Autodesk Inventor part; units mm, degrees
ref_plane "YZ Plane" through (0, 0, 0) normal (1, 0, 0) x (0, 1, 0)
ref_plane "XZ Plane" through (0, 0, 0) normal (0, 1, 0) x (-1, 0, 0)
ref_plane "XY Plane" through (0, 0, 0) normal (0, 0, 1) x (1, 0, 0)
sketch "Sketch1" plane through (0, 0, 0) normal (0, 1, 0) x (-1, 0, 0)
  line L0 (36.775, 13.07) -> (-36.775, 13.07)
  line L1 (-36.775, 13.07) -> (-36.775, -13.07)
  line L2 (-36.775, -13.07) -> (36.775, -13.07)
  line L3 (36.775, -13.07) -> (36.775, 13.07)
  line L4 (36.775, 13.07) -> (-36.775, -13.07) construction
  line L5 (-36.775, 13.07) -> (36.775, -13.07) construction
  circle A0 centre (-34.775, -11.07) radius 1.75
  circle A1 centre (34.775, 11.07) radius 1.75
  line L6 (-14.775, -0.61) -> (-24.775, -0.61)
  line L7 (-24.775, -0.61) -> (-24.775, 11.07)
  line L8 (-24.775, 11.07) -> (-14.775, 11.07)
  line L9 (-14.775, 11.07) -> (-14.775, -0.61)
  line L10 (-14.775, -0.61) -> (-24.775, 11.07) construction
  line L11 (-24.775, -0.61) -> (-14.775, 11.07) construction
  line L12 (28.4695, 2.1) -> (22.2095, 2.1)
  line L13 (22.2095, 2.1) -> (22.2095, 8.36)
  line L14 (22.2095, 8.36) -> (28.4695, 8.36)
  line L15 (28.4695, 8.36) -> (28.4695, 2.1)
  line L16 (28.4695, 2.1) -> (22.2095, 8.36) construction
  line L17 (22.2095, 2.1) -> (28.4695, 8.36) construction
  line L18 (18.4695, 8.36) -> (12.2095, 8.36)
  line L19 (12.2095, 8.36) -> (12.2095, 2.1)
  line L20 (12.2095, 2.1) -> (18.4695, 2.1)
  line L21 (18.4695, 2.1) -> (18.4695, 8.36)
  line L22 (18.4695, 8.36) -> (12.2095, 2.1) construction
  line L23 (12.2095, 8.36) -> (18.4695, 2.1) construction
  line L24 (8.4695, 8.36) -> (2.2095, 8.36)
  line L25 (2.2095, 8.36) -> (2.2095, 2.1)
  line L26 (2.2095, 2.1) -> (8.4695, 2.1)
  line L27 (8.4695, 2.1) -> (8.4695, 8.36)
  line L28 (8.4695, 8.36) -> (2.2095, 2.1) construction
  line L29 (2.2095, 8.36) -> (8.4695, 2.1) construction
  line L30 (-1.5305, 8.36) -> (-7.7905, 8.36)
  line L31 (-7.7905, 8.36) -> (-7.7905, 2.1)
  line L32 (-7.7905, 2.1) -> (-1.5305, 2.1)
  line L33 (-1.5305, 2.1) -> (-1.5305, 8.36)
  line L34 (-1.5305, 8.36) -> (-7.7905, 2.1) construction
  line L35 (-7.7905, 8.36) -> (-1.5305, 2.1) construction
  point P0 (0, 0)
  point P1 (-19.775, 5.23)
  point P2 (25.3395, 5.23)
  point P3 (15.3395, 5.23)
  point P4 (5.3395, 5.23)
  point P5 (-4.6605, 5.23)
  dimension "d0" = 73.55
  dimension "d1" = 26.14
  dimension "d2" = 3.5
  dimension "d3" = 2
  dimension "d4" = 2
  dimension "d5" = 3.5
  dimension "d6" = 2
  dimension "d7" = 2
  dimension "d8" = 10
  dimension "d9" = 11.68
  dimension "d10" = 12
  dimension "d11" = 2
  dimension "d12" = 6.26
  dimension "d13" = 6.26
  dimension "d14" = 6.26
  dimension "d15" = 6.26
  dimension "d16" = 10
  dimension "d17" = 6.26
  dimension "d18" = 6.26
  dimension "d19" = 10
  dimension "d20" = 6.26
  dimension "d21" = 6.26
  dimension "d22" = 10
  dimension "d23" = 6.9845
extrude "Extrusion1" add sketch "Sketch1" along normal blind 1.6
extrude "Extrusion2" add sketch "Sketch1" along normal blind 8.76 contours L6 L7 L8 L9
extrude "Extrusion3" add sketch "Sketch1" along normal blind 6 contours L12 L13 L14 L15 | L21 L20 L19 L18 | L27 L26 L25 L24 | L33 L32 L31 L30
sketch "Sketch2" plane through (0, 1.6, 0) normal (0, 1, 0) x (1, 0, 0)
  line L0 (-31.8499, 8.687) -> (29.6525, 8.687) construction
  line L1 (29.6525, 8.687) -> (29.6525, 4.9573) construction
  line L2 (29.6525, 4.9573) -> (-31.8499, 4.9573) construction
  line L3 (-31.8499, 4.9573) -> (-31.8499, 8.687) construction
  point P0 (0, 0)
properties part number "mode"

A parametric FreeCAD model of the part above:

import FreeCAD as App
import Part
import Sketcher
Q = App.Units.Quantity

doc = App.newDocument("Part")
body = doc.addObject("PartDesign::Body", "Body")

# Sketch on XZ plane
sketch1 = body.newObject("Sketcher::SketchObject", "Sketch")
sketch1.AttachmentSupport = (doc.getObject("XZ_Plane"), [""])
sketch1.MapMode = "FlatFace"
sketch1.addGeometry(Part.LineSegment(App.Vector(-36.775, -13.07, 0), App.Vector(-36.775, 13.07, 0)), False)
sketch1.addGeometry(Part.LineSegment(App.Vector(-36.775, 13.07, 0), App.Vector(36.775, 13.07, 0)), False)
sketch1.addGeometry(Part.LineSegment(App.Vector(36.775, 13.07, 0), App.Vector(36.775, -13.07, 0)), False)
sketch1.addGeometry(Part.LineSegment(App.Vector(36.775, -13.07, 0), App.Vector(-36.775, -13.07, 0)), False)
sketch1.addGeometry(Part.Circle(App.Vector(34.775, -11.07, 0), App.Vector(0, 0, 1), 1.75), False)
sketch1.addGeometry(Part.LineSegment(App.Vector(14.775, 11.07, 0), App.Vector(14.775, -0.61, 0)), False)
sketch1.addGeometry(Part.LineSegment(App.Vector(14.775, -0.61, 0), App.Vector(24.775, -0.61, 0)), False)
sketch1.addGeometry(Part.LineSegment(App.Vector(24.775, -0.61, 0), App.Vector(24.775, 11.07, 0)), False)
sketch1.addGeometry(Part.LineSegment(App.Vector(24.775, 11.07, 0), App.Vector(14.775, 11.07, 0)), False)
sketch1.addGeometry(Part.LineSegment(App.Vector(7.7905, 8.36, 0), App.Vector(1.5305, 8.36, 0)), False)
sketch1.addGeometry(Part.LineSegment(App.Vector(1.5305, 8.36, 0), App.Vector(1.5305, 2.1, 0)), False)
sketch1.addGeometry(Part.LineSegment(App.Vector(1.5305, 2.1, 0), App.Vector(7.7905, 2.1, 0)), False)
sketch1.addGeometry(Part.LineSegment(App.Vector(7.7905, 2.1, 0), App.Vector(7.7905, 8.36, 0)), False)
sketch1.addGeometry(Part.LineSegment(App.Vector(-2.2095, 8.36, 0), App.Vector(-8.4695, 8.36, 0)), False)
sketch1.addGeometry(Part.LineSegment(App.Vector(-8.4695, 8.36, 0), App.Vector(-8.4695, 2.1, 0)), False)
sketch1.addGeometry(Part.LineSegment(App.Vector(-8.4695, 2.1, 0), App.Vector(-2.2095, 2.1, 0)), False)
sketch1.addGeometry(Part.LineSegment(App.Vector(-2.2095, 2.1, 0), App.Vector(-2.2095, 8.36, 0)), False)
sketch1.addGeometry(Part.LineSegment(App.Vector(-12.2095, 8.36, 0), App.Vector(-18.4695, 8.36, 0)), False)
sketch1.addGeometry(Part.LineSegment(App.Vector(-18.4695, 8.36, 0), App.Vector(-18.4695, 2.1, 0)), False)
sketch1.addGeometry(Part.LineSegment(App.Vector(-18.4695, 2.1, 0), App.Vector(-12.2095, 2.1, 0)), False)
sketch1.addGeometry(Part.LineSegment(App.Vector(-12.2095, 2.1, 0), App.Vector(-12.2095, 8.36, 0)), False)
sketch1.addGeometry(Part.LineSegment(App.Vector(-28.4695, 8.36, 0), App.Vector(-28.4695, 2.1, 0)), False)
sketch1.addGeometry(Part.LineSegment(App.Vector(-28.4695, 2.1, 0), App.Vector(-22.2095, 2.1, 0)), False)
sketch1.addGeometry(Part.LineSegment(App.Vector(-22.2095, 2.1, 0), App.Vector(-22.2095, 8.36, 0)), False)
sketch1.addGeometry(Part.LineSegment(App.Vector(-22.2095, 8.36, 0), App.Vector(-28.4695, 8.36, 0)), False)
sketch1.addGeometry(Part.Circle(App.Vector(-34.775, 11.07, 0), App.Vector(0, 0, 1), 1.75), False)
sketch1.addConstraint(Sketcher.Constraint("Coincident", 0, 2, 1, 1))
sketch1.addConstraint(Sketcher.Constraint("Coincident", 1, 2, 2, 1))
sketch1.addConstraint(Sketcher.Constraint("Coincident", 2, 2, 3, 1))
sketch1.addConstraint(Sketcher.Constraint("Coincident", 3, 2, 0, 1))
sketch1.addConstraint(Sketcher.Constraint("Coincident", 5, 2, 6, 1))
sketch1.addConstraint(Sketcher.Constraint("Coincident", 6, 2, 7, 1))
sketch1.addConstraint(Sketcher.Constraint("Coincident", 7, 2, 8, 1))
sketch1.addConstraint(Sketcher.Constraint("Coincident", 8, 2, 5, 1))
sketch1.addConstraint(Sketcher.Constraint("Coincident", 9, 2, 10, 1))
sketch1.addConstraint(Sketcher.Constraint("Coincident", 10, 2, 11, 1))
sketch1.addConstraint(Sketcher.Constraint("Coincident", 11, 2, 12, 1))
sketch1.addConstraint(Sketcher.Constraint("Coincident", 12, 2, 9, 1))
sketch1.addConstraint(Sketcher.Constraint("Coincident", 13, 2, 14, 1))
sketch1.addConstraint(Sketcher.Constraint("Coincident", 14, 2, 15, 1))
sketch1.addConstraint(Sketcher.Constraint("Coincident", 15, 2, 16, 1))
sketch1.addConstraint(Sketcher.Constraint("Coincident", 16, 2, 13, 1))
sketch1.addConstraint(Sketcher.Constraint("Coincident", 17, 2, 18, 1))
sketch1.addConstraint(Sketcher.Constraint("Coincident", 18, 2, 19, 1))
sketch1.addConstraint(Sketcher.Constraint("Coincident", 19, 2, 20, 1))
sketch1.addConstraint(Sketcher.Constraint("Coincident", 20, 2, 17, 1))
sketch1.addConstraint(Sketcher.Constraint("Coincident", 21, 2, 22, 1))
sketch1.addConstraint(Sketcher.Constraint("Coincident", 22, 2, 23, 1))
sketch1.addConstraint(Sketcher.Constraint("Coincident", 23, 2, 24, 1))
sketch1.addConstraint(Sketcher.Constraint("Coincident", 24, 2, 21, 1))
sketch1.addConstraint(Sketcher.Constraint("Vertical", 0))
sketch1.addConstraint(Sketcher.Constraint("Horizontal", 1))
sketch1.addConstraint(Sketcher.Constraint("Vertical", 2))
sketch1.addConstraint(Sketcher.Constraint("Horizontal", 3))
sketch1.addConstraint(Sketcher.Constraint("Vertical", 5))
sketch1.addConstraint(Sketcher.Constraint("Horizontal", 6))
sketch1.addConstraint(Sketcher.Constraint("Vertical", 7))
sketch1.addConstraint(Sketcher.Constraint("Horizontal", 8))
sketch1.addConstraint(Sketcher.Constraint("Horizontal", 9))
sketch1.addConstraint(Sketcher.Constraint("Vertical", 10))
sketch1.addConstraint(Sketcher.Constraint("Horizontal", 11))
sketch1.addConstraint(Sketcher.Constraint("Vertical", 12))
sketch1.addConstraint(Sketcher.Constraint("Horizontal", 13))
sketch1.addConstraint(Sketcher.Constraint("Vertical", 14))
sketch1.addConstraint(Sketcher.Constraint("Horizontal", 15))
sketch1.addConstraint(Sketcher.Constraint("Vertical", 16))
sketch1.addConstraint(Sketcher.Constraint("Horizontal", 17))
sketch1.addConstraint(Sketcher.Constraint("Vertical", 18))
sketch1.addConstraint(Sketcher.Constraint("Horizontal", 19))
sketch1.addConstraint(Sketcher.Constraint("Vertical", 20))
sketch1.addConstraint(Sketcher.Constraint("Vertical", 21))
sketch1.addConstraint(Sketcher.Constraint("Horizontal", 22))
sketch1.addConstraint(Sketcher.Constraint("Vertical", 23))
sketch1.addConstraint(Sketcher.Constraint("Horizontal", 24))
sketch1.addConstraint(Sketcher.Constraint("Equal", 4, 25))
sketch1.addConstraint(Sketcher.Constraint("Symmetric", 4, 3, 25, 3, -1, 1))
sketch1.addConstraint(Sketcher.Constraint("Symmetric", 0, 2, 2, 2, -1, 1))
sketch1.addConstraint(Sketcher.Constraint("Horizontal", 25, 3, 7, 2))
sketch1.addConstraint(Sketcher.Constraint("Horizontal", 12, 2, 13, 2))
sketch1.addConstraint(Sketcher.Constraint("Horizontal", 11, 2, 14, 2))
sketch1.addConstraint(Sketcher.Constraint("Horizontal", 16, 2, 17, 2))
sketch1.addConstraint(Sketcher.Constraint("Horizontal", 15, 2, 18, 2))
sketch1.addConstraint(Sketcher.Constraint("Horizontal", 19, 2, 21, 2))
sketch1.addConstraint(Sketcher.Constraint("Horizontal", 20, 2, 23, 2))
sketch1.addConstraint(Sketcher.Constraint("Equal", 11, 13))
sketch1.addConstraint(Sketcher.Constraint("Equal", 15, 17))
sketch1.addConstraint(Sketcher.Constraint("Equal", 19, 22))
sketch1.addConstraint(Sketcher.Constraint("Equal", 24, 10))
sketch1.addConstraint(Sketcher.Constraint("Diameter", 4, Q("3.5 mm")))
sketch1.addConstraint(Sketcher.Constraint("DistanceX", 6, 1, 6, 2, Q("10 mm")))
sketch1.addConstraint(Sketcher.Constraint("DistanceX", 0, 2, 25, 3, Q("2 mm")))
sketch1.addConstraint(Sketcher.Constraint("DistanceY", 25, 3, 0, 2, Q("2 mm")))
sketch1.addConstraint(Sketcher.Constraint("DistanceX", 6, 2, 4, 3, Q("10 mm")))
sketch1.addConstraint(Sketcher.Constraint("DistanceX", 13, 2, 9, 2, Q("10 mm")))
sketch1.addConstraint(Sketcher.Constraint("DistanceX", 17, 2, 13, 2, Q("10 mm")))
sketch1.addConstraint(Sketcher.Constraint("DistanceX", 21, 2, 18, 2, Q("10 mm")))
sketch1.addConstraint(Sketcher.Constraint("DistanceX", 1, 1, 1, 2, Q("73.55 mm")))
sketch1.addConstraint(Sketcher.Constraint("DistanceX", 9, 2, 9, 1, Q("6.26 mm")))
sketch1.addConstraint(Sketcher.Constraint("DistanceY", 0, 1, 0, 2, Q("26.14 mm")))
sketch1.addConstraint(Sketcher.Constraint("DistanceY", 5, 2, 5, 1, Q("11.68 mm")))
sketch1.addConstraint(Sketcher.Constraint("DistanceY", -1, 1, 10, 2, Q("2.1 mm")))
sketch1.addConstraint(Sketcher.Constraint("DistanceX", 11, 2, 5, 2, Q("6.9845 mm")))
pad1 = body.newObject("PartDesign::Pad", "Pad")
pad1.Profile = sketch1
pad1.Length = 1.6
pad1.Reversed = True

# Sketch on XZ plane
sketch2 = body.newObject("Sketcher::SketchObject", "Sketch001")
sketch2.AttachmentSupport = (doc.getObject("XZ_Plane"), [""])
sketch2.MapMode = "FlatFace"
sketch2.addGeometry(Part.LineSegment(App.Vector(24.775, -0.61, 0), App.Vector(14.775, -0.61, 0)), False)
sketch2.addGeometry(Part.LineSegment(App.Vector(14.775, -0.61, 0), App.Vector(14.775, 11.07, 0)), False)
sketch2.addGeometry(Part.LineSegment(App.Vector(14.775, 11.07, 0), App.Vector(24.775, 11.07, 0)), False)
sketch2.addGeometry(Part.LineSegment(App.Vector(24.775, 11.07, 0), App.Vector(24.775, -0.61, 0)), False)
sketch2.addConstraint(Sketcher.Constraint("Coincident", 0, 2, 1, 1))
sketch2.addConstraint(Sketcher.Constraint("Coincident", 1, 2, 2, 1))
sketch2.addConstraint(Sketcher.Constraint("Coincident", 2, 2, 3, 1))
sketch2.addConstraint(Sketcher.Constraint("Coincident", 3, 2, 0, 1))
sketch2.addConstraint(Sketcher.Constraint("Horizontal", 0))
sketch2.addConstraint(Sketcher.Constraint("Vertical", 1))
sketch2.addConstraint(Sketcher.Constraint("Horizontal", 2))
sketch2.addConstraint(Sketcher.Constraint("Vertical", 3))
sketch2.addConstraint(Sketcher.Constraint("DistanceX", 0, 2, 0, 1, Q("10 mm")))
sketch2.addConstraint(Sketcher.Constraint("DistanceY", 1, 1, 1, 2, Q("11.68 mm")))
sketch2.addConstraint(Sketcher.Constraint("DistanceY", 0, 2, -1, 1, Q("0.61 mm")))
sketch2.addConstraint(Sketcher.Constraint("DistanceX", -1, 1, 0, 2, Q("14.775 mm")))
pad2 = body.newObject("PartDesign::Pad", "Pad001")
pad2.Profile = sketch2
pad2.Length = 8.76
pad2.Reversed = True

# Sketch on XZ plane
sketch3 = body.newObject("Sketcher::SketchObject", "Sketch002")
sketch3.AttachmentSupport = (doc.getObject("XZ_Plane"), [""])
sketch3.MapMode = "FlatFace"
sketch3.addGeometry(Part.LineSegment(App.Vector(-22.2095, 2.1, 0), App.Vector(-28.4695, 2.1, 0)), False)
sketch3.addGeometry(Part.LineSegment(App.Vector(-28.4695, 2.1, 0), App.Vector(-28.4695, 8.36, 0)), False)
sketch3.addGeometry(Part.LineSegment(App.Vector(-28.4695, 8.36, 0), App.Vector(-22.2095, 8.36, 0)), False)
sketch3.addGeometry(Part.LineSegment(App.Vector(-22.2095, 8.36, 0), App.Vector(-22.2095, 2.1, 0)), False)
sketch3.addGeometry(Part.LineSegment(App.Vector(-18.4695, 2.1, 0), App.Vector(-18.4695, 8.36, 0)), False)
sketch3.addGeometry(Part.LineSegment(App.Vector(-18.4695, 8.36, 0), App.Vector(-12.2095, 8.36, 0)), False)
sketch3.addGeometry(Part.LineSegment(App.Vector(-12.2095, 8.36, 0), App.Vector(-12.2095, 2.1, 0)), False)
sketch3.addGeometry(Part.LineSegment(App.Vector(-12.2095, 2.1, 0), App.Vector(-18.4695, 2.1, 0)), False)
sketch3.addGeometry(Part.LineSegment(App.Vector(-8.4695, 2.1, 0), App.Vector(-8.4695, 8.36, 0)), False)
sketch3.addGeometry(Part.LineSegment(App.Vector(-8.4695, 8.36, 0), App.Vector(-2.2095, 8.36, 0)), False)
sketch3.addGeometry(Part.LineSegment(App.Vector(-2.2095, 8.36, 0), App.Vector(-2.2095, 2.1, 0)), False)
sketch3.addGeometry(Part.LineSegment(App.Vector(-2.2095, 2.1, 0), App.Vector(-8.4695, 2.1, 0)), False)
sketch3.addGeometry(Part.LineSegment(App.Vector(1.5305, 2.1, 0), App.Vector(1.5305, 8.36, 0)), False)
sketch3.addGeometry(Part.LineSegment(App.Vector(1.5305, 8.36, 0), App.Vector(7.7905, 8.36, 0)), False)
sketch3.addGeometry(Part.LineSegment(App.Vector(7.7905, 8.36, 0), App.Vector(7.7905, 2.1, 0)), False)
sketch3.addGeometry(Part.LineSegment(App.Vector(7.7905, 2.1, 0), App.Vector(1.5305, 2.1, 0)), False)
sketch3.addConstraint(Sketcher.Constraint("Coincident", 0, 2, 1, 1))
sketch3.addConstraint(Sketcher.Constraint("Coincident", 1, 2, 2, 1))
sketch3.addConstraint(Sketcher.Constraint("Coincident", 2, 2, 3, 1))
sketch3.addConstraint(Sketcher.Constraint("Coincident", 3, 2, 0, 1))
sketch3.addConstraint(Sketcher.Constraint("Coincident", 4, 2, 5, 1))
sketch3.addConstraint(Sketcher.Constraint("Coincident", 5, 2, 6, 1))
sketch3.addConstraint(Sketcher.Constraint("Coincident", 6, 2, 7, 1))
sketch3.addConstraint(Sketcher.Constraint("Coincident", 7, 2, 4, 1))
sketch3.addConstraint(Sketcher.Constraint("Coincident", 8, 2, 9, 1))
sketch3.addConstraint(Sketcher.Constraint("Coincident", 9, 2, 10, 1))
sketch3.addConstraint(Sketcher.Constraint("Coincident", 10, 2, 11, 1))
sketch3.addConstraint(Sketcher.Constraint("Coincident", 11, 2, 8, 1))
sketch3.addConstraint(Sketcher.Constraint("Coincident", 12, 2, 13, 1))
sketch3.addConstraint(Sketcher.Constraint("Coincident", 13, 2, 14, 1))
sketch3.addConstraint(Sketcher.Constraint("Coincident", 14, 2, 15, 1))
sketch3.addConstraint(Sketcher.Constraint("Coincident", 15, 2, 12, 1))
sketch3.addConstraint(Sketcher.Constraint("Horizontal", 0))
sketch3.addConstraint(Sketcher.Constraint("Vertical", 1))
sketch3.addConstraint(Sketcher.Constraint("Horizontal", 2))
sketch3.addConstraint(Sketcher.Constraint("Vertical", 3))
sketch3.addConstraint(Sketcher.Constraint("Vertical", 4))
sketch3.addConstraint(Sketcher.Constraint("Horizontal", 5))
sketch3.addConstraint(Sketcher.Constraint("Vertical", 6))
sketch3.addConstraint(Sketcher.Constraint("Horizontal", 7))
sketch3.addConstraint(Sketcher.Constraint("Vertical", 8))
sketch3.addConstraint(Sketcher.Constraint("Horizontal", 9))
sketch3.addConstraint(Sketcher.Constraint("Vertical", 10))
sketch3.addConstraint(Sketcher.Constraint("Horizontal", 11))
sketch3.addConstraint(Sketcher.Constraint("Vertical", 12))
sketch3.addConstraint(Sketcher.Constraint("Horizontal", 13))
sketch3.addConstraint(Sketcher.Constraint("Vertical", 14))
sketch3.addConstraint(Sketcher.Constraint("Horizontal", 15))
sketch3.addConstraint(Sketcher.Constraint("Horizontal", 2, 2, 4, 2))
sketch3.addConstraint(Sketcher.Constraint("Horizontal", 3, 2, 6, 2))
sketch3.addConstraint(Sketcher.Constraint("Horizontal", 5, 2, 8, 2))
sketch3.addConstraint(Sketcher.Constraint("Horizontal", 7, 2, 10, 2))
sketch3.addConstraint(Sketcher.Constraint("Horizontal", 9, 2, 12, 2))
sketch3.addConstraint(Sketcher.Constraint("Horizontal", 11, 2, 14, 2))
sketch3.addConstraint(Sketcher.Constraint("Equal", 2, 5))
sketch3.addConstraint(Sketcher.Constraint("Equal", 7, 9))
sketch3.addConstraint(Sketcher.Constraint("Equal", 11, 13))
sketch3.addConstraint(Sketcher.Constraint("Equal", 15, 1))
sketch3.addConstraint(Sketcher.Constraint("DistanceX", 1, 2, 4, 2, Q("10 mm")))
sketch3.addConstraint(Sketcher.Constraint("DistanceX", 4, 2, 8, 2, Q("10 mm")))
sketch3.addConstraint(Sketcher.Constraint("DistanceX", 8, 2, 12, 2, Q("10 mm")))
sketch3.addConstraint(Sketcher.Constraint("DistanceX", 0, 2, 0, 1, Q("6.26 mm")))
sketch3.addConstraint(Sketcher.Constraint("DistanceY", -1, 1, 0, 2, Q("2.1 mm")))
sketch3.addConstraint(Sketcher.Constraint("DistanceX", 0, 2, -1, 1, Q("28.4695 mm")))
pad3 = body.newObject("PartDesign::Pad", "Pad002")
pad3.Profile = sketch3
pad3.Length = 6
pad3.Reversed = True

doc.recompute()
